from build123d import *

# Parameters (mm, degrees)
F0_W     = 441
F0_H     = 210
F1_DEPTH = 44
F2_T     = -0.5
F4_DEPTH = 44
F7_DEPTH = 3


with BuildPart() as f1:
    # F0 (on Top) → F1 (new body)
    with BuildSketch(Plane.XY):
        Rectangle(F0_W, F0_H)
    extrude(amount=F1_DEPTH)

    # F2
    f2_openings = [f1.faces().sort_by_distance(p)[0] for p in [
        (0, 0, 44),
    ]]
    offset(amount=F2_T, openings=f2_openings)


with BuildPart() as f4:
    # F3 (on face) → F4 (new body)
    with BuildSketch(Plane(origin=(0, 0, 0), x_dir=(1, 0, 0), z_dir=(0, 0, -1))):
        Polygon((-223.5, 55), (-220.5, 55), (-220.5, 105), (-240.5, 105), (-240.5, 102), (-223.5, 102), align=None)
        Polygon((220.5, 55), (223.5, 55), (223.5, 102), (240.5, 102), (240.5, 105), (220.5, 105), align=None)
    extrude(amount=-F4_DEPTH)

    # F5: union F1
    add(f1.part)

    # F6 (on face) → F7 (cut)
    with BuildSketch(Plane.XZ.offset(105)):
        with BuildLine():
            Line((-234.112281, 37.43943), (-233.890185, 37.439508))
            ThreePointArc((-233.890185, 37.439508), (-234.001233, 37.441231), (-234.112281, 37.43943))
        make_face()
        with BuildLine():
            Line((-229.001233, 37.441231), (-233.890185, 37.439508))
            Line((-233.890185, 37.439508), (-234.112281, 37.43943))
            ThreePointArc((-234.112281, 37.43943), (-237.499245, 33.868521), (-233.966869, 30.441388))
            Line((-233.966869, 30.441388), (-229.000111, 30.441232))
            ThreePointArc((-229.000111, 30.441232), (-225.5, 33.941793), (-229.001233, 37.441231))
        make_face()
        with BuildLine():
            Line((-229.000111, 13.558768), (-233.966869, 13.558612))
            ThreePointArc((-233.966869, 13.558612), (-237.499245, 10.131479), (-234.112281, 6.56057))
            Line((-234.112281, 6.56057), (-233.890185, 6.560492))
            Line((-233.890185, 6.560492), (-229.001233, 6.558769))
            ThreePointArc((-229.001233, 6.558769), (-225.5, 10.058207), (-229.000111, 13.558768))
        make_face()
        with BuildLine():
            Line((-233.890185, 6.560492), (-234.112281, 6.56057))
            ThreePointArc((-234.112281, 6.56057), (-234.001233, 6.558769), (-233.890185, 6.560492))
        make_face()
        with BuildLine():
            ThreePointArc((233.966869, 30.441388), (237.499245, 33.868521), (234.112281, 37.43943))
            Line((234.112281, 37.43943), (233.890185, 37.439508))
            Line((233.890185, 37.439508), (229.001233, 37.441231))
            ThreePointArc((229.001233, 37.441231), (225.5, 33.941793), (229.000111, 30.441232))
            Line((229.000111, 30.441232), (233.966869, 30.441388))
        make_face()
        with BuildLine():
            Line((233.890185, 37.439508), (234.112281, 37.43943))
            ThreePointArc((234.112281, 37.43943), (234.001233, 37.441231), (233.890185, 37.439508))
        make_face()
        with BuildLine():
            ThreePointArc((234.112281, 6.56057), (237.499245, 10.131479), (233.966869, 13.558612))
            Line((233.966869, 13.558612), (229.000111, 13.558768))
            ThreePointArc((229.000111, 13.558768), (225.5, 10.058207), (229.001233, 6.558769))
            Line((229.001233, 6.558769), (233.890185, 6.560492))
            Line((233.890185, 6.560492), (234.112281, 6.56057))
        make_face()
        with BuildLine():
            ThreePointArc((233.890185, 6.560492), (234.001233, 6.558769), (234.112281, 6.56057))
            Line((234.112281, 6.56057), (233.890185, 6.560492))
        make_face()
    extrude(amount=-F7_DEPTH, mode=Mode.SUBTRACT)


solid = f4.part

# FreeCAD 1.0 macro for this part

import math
import FreeCAD as App
import Part
import Sketcher
from FreeCAD import Vector
Q = App.Units.Quantity


def faces_at(feature, points):
    """Names of the faces that lie closest to the given points."""
    faces = feature.Shape.Faces
    near = lambda p: min(range(len(faces)), key=lambda i: faces[i].distToShape(Part.Vertex(*p))[0])
    return sorted({f"Face{near(p) + 1}" for p in points})


def add_polygon(sketch, points):
    """Adds a closed chain of lines whose ends are joined by coincident constraints."""
    first, n = sketch.GeometryCount, len(points)
    for a, b in zip(points, points[1:] + points[:1]):
        sketch.addGeometry(Part.LineSegment(App.Vector(*a, 0), App.Vector(*b, 0)), False)
    for i in range(n):
        sketch.addConstraint(Sketcher.Constraint("Coincident", first + i, 2, first + (i + 1) % n, 1))

doc = App.newDocument("Part")
body = doc.addObject("PartDesign::Body", "Body")

# Sketch on XY plane
sketch1 = body.newObject("Sketcher::SketchObject", "Sketch")
sketch1.AttachmentSupport = (doc.getObject("XY_Plane"), [""])
sketch1.MapMode = "FlatFace"
add_polygon(sketch1, [(-220.5, 105), (-220.5, -105), (220.5, -105), (220.5, 105)])  # lines 0-3
sketch1.addConstraint([
    Sketcher.Constraint("Vertical", 0),
    Sketcher.Constraint("Horizontal", 1),
    Sketcher.Constraint("Vertical", 2),
    Sketcher.Constraint("Horizontal", 3),
    Sketcher.Constraint("Symmetric", 0, 2, 2, 2, -1, 1),
    Sketcher.Constraint("DistanceX", 1, 1, 1, 2, Q("441 mm")),
    Sketcher.Constraint("DistanceY", 0, 2, 0, 1, Q("210 mm")),
])
pad1 = body.newObject("PartDesign::Pad", "Pad")
pad1.Profile = sketch1
pad1.Length = 44
doc.recompute()

thickness = body.newObject("PartDesign::Thickness", "Thickness")
thickness.Base = (pad1, faces_at(pad1, [(0, 0, 44)]))
thickness.Value = 0.5
thickness.Reversed = True
thickness.Join = "Arc"
body2 = doc.addObject("PartDesign::Body", "Body001")
body2.AllowCompound = True

# Sketch on XY plane
sketch2 = body2.newObject("Sketcher::SketchObject", "Sketch001")
sketch2.AttachmentSupport = (doc.getObject("XY_Plane001"), [""])
sketch2.MapMode = "FlatFace"
add_polygon(sketch2, [(-223.5, -55), (-220.5, -55), (-220.5, -105), (-240.5, -105), (-240.5, -102), (-223.5, -102)])  # lines 0-5
add_polygon(sketch2, [(220.5, -55), (223.5, -55), (223.5, -102), (240.5, -102), (240.5, -105), (220.5, -105)])  # lines 6-11
sketch2.addConstraint([
    Sketcher.Constraint("Horizontal", 0),
    Sketcher.Constraint("Vertical", 1),
    Sketcher.Constraint("Horizontal", 2),
    Sketcher.Constraint("Vertical", 3),
    Sketcher.Constraint("Horizontal", 4),
    Sketcher.Constraint("Vertical", 5),
    Sketcher.Constraint("Horizontal", 6),
    Sketcher.Constraint("Vertical", 7),
    Sketcher.Constraint("Horizontal", 8),
    Sketcher.Constraint("Vertical", 9),
    Sketcher.Constraint("Horizontal", 10),
    Sketcher.Constraint("Vertical", 11),
    Sketcher.Constraint("Symmetric", 5, 2, 6, 2, -2),
    Sketcher.Constraint("Symmetric", 3, 2, 8, 2, -2),
    Sketcher.Constraint("Symmetric", 1, 2, 10, 2, -2),
    Sketcher.Constraint("Equal", 6, 3),
    Sketcher.Constraint("DistanceX", 0, 1, 0, 2, Q("3 mm")),
    Sketcher.Constraint("DistanceX", 2, 2, 2, 1, Q("20 mm")),
    Sketcher.Constraint("DistanceY", 1, 2, 1, 1, Q("50 mm")),
    Sketcher.Constraint("DistanceY", 0, 2, -1, 1, Q("55 mm")),
    Sketcher.Constraint("DistanceX", 0, 2, 6, 2, Q("444 mm")),
])
pad2 = body2.newObject("PartDesign::Pad", "Pad001")
pad2.Profile = sketch2
pad2.Length = 44
doc.recompute()

boolean = body2.newObject("PartDesign::Boolean", "Boolean")
boolean.Type = "Fuse"
boolean.addObjects([body])

# Sketch on XZ plane
sketch3 = body2.newObject("Sketcher::SketchObject", "Sketch002")
sketch3.AttachmentSupport = (doc.getObject("XZ_Plane001"), [""])
sketch3.MapMode = "FlatFace"
sketch3.AttachmentOffset = App.Placement(Vector(0, 0, 105), App.Rotation())
sketch3.addGeometry([
    Part.ArcOfCircle(Part.Circle(Vector(-234.000004, 33.941014, 0), Vector(0, 0, 1), 3.500217), math.radians(88.202049), math.radians(91.838195)),  # 0
    Part.ArcOfCircle(Part.Circle(Vector(-234, 33.941231, 0), Vector(0, 0, 1), 3.5), math.radians(91.838377), math.radians(270.542373)),  # 1
    Part.LineSegment(Vector(-233.966869, 30.441388, 0), Vector(-229.000111, 30.441232, 0)),  # 2
    Part.ArcOfCircle(Part.Circle(Vector(-229, 33.941232, 0), Vector(0, 0, 1), 3.5), math.radians(-90.001824), math.radians(90.020192)),  # 3
    Part.LineSegment(Vector(-229.001233, 37.441231, 0), Vector(-233.890185, 37.439508, 0)),  # 4
    Part.LineSegment(Vector(-229.000111, 13.558768, 0), Vector(-233.966869, 13.558612, 0)),  # 5
    Part.ArcOfCircle(Part.Circle(Vector(-234, 10.058769, 0), Vector(0, 0, 1), 3.5), math.radians(89.457627), math.radians(268.161623)),  # 6
    Part.ArcOfCircle(Part.Circle(Vector(-234.000004, 10.058986, 0), Vector(0, 0, 1), 3.500217), math.radians(-91.838195), math.radians(-88.202049)),  # 7
    Part.LineSegment(Vector(-233.890185, 6.560492, 0), Vector(-229.001233, 6.558769, 0)),  # 8
    Part.ArcOfCircle(Part.Circle(Vector(-229, 10.058768, 0), Vector(0, 0, 1), 3.5), math.radians(-90.020192), math.radians(90.001824)),  # 9
    Part.ArcOfCircle(Part.Circle(Vector(234, 33.941231, 0), Vector(0, 0, 1), 3.5), math.radians(-90.542373), math.radians(88.161623)),  # 10
    Part.ArcOfCircle(Part.Circle(Vector(234.000004, 33.941014, 0), Vector(0, 0, 1), 3.500217), math.radians(88.161805), math.radians(91.797951)),  # 11
    Part.LineSegment(Vector(233.890185, 37.439508, 0), Vector(229.001233, 37.441231, 0)),  # 12
    Part.ArcOfCircle(Part.Circle(Vector(229, 33.941232, 0), Vector(0, 0, 1), 3.5), math.radians(89.979808), math.radians(270.001824)),  # 13
    Part.LineSegment(Vector(229.000111, 30.441232, 0), Vector(233.966869, 30.441388, 0)),  # 14
    Part.ArcOfCircle(Part.Circle(Vector(234, 10.058769, 0), Vector(0, 0, 1), 3.5), math.radians(-88.161623), math.radians(90.542373)),  # 15
    Part.LineSegment(Vector(233.966869, 13.558612, 0), Vector(229.000111, 13.558768, 0)),  # 16
    Part.ArcOfCircle(Part.Circle(Vector(229, 10.058768, 0), Vector(0, 0, 1), 3.5), math.radians(89.998176), math.radians(270.020192)),  # 17
    Part.LineSegment(Vector(229.001233, 6.558769, 0), Vector(233.890185, 6.560492, 0)),  # 18
    Part.ArcOfCircle(Part.Circle(Vector(234.000004, 10.058986, 0), Vector(0, 0, 1), 3.500217), math.radians(-91.797951), math.radians(-88.161805)),  # 19
], False)
sketch3.addConstraint([
    Sketcher.Constraint("Coincident", 0, 2, 1, 1),
    Sketcher.Constraint("Coincident", 1, 2, 2, 1),
    Sketcher.Constraint("Tangent", 2, 2, 3, 1),
    Sketcher.Constraint("Tangent", 3, 2, 4, 1),
    Sketcher.Constraint("Coincident", 4, 2, 0, 1),
    Sketcher.Constraint("Coincident", 5, 2, 6, 1),
    Sketcher.Constraint("Coincident", 6, 2, 7, 1),
    Sketcher.Constraint("Coincident", 7, 2, 8, 1),
    Sketcher.Constraint("Tangent", 8, 2, 9, 1),
    Sketcher.Constraint("Tangent", 9, 2, 5, 1),
    Sketcher.Constraint("Coincident", 10, 2, 11, 1),
    Sketcher.Constraint("Coincident", 11, 2, 12, 1),
    Sketcher.Constraint("Tangent", 12, 2, 13, 1),
    Sketcher.Constraint("Tangent", 13, 2, 14, 1),
    Sketcher.Constraint("Coincident", 14, 2, 10, 1),
    Sketcher.Constraint("Coincident", 15, 2, 16, 1),
    Sketcher.Constraint("Tangent", 16, 2, 17, 1),
    Sketcher.Constraint("Tangent", 17, 2, 18, 1),
    Sketcher.Constraint("Coincident", 18, 2, 19, 1),
    Sketcher.Constraint("Coincident", 19, 2, 15, 1),
    Sketcher.Constraint("Equal", 1, 3),
    Sketcher.Constraint("Equal", 3, 6),
    Sketcher.Constraint("Equal", 0, 7),
    Sketcher.Constraint("Equal", 6, 9),
    Sketcher.Constraint("Equal", 9, 10),
    Sketcher.Constraint("Equal", 7, 11),
    Sketcher.Constraint("Equal", 10, 13),
    Sketcher.Constraint("Equal", 13, 15),
    Sketcher.Constraint("Equal", 15, 17),
    Sketcher.Constraint("Equal", 11, 19),
    Sketcher.Constraint("Symmetric", 1, 3, 10, 3, -2),
    Sketcher.Constraint("Symmetric", 3, 3, 13, 3, -2),
    Sketcher.Constraint("Symmetric", 6, 3, 15, 3, -2),
    Sketcher.Constraint("Symmetric", 9, 3, 17, 3, -2),
    Sketcher.Constraint("Symmetric", 4, 2, 11, 2, -2),
    Sketcher.Constraint("Symmetric", 7, 2, 18, 2, -2),
    Sketcher.Constraint("Parallel", 8, 12),
    Sketcher.Constraint("Parallel", 5, 14),
    Sketcher.Constraint("Parallel", 2, 16),
    Sketcher.Constraint("Horizontal", 1, 3, 3, 3),
    Sketcher.Constraint("Horizontal", 6, 3, 9, 3),
    Sketcher.Constraint("Horizontal", 0, 2, 10, 2),
    Sketcher.Constraint("Horizontal", 1, 2, 14, 2),
    Sketcher.Constraint("Horizontal", 6, 2, 19, 2),
    Sketcher.Constraint("Vertical", 1, 3, 6, 3),
    Sketcher.Constraint("Vertical", 0, 3, 7, 3),
    Sketcher.Constraint("Vertical", 3, 3, 9, 3),
    Sketcher.Constraint("Vertical", 0, 2, 6, 2),
    Sketcher.Constraint("Radius", 1, Q("3.5 mm")),
    Sketcher.Constraint("DistanceX", 1, 3, -1, 1, Q("234 mm")),
    Sketcher.Constraint("DistanceX", 3, 3, -1, 1, Q("229 mm")),
    Sketcher.Constraint("Radius", 0, Q("3.500217 mm")),
    Sketcher.Constraint("DistanceY", 1, 3, 0, 2, Q("3.498199 mm")),
    Sketcher.Constraint("Distance", 2, Q("4.966758 mm")),
    Sketcher.Constraint("DistanceY", -1, 1, 1, 3, Q("33.941231 mm")),
    Sketcher.Constraint("DistanceY", -1, 1, 6, 3, Q("10.058769 mm")),
    Sketcher.Constraint("DistanceY", -1, 1, 7, 2, Q("6.560492 mm")),
    Sketcher.Constraint("DistanceY", 7, 3, 0, 3, Q("23.882028 mm")),
])
pocket1 = body2.newObject("PartDesign::Pocket", "Pocket")
pocket1.Profile = sketch3
pocket1.Length = 3

doc.recompute()
